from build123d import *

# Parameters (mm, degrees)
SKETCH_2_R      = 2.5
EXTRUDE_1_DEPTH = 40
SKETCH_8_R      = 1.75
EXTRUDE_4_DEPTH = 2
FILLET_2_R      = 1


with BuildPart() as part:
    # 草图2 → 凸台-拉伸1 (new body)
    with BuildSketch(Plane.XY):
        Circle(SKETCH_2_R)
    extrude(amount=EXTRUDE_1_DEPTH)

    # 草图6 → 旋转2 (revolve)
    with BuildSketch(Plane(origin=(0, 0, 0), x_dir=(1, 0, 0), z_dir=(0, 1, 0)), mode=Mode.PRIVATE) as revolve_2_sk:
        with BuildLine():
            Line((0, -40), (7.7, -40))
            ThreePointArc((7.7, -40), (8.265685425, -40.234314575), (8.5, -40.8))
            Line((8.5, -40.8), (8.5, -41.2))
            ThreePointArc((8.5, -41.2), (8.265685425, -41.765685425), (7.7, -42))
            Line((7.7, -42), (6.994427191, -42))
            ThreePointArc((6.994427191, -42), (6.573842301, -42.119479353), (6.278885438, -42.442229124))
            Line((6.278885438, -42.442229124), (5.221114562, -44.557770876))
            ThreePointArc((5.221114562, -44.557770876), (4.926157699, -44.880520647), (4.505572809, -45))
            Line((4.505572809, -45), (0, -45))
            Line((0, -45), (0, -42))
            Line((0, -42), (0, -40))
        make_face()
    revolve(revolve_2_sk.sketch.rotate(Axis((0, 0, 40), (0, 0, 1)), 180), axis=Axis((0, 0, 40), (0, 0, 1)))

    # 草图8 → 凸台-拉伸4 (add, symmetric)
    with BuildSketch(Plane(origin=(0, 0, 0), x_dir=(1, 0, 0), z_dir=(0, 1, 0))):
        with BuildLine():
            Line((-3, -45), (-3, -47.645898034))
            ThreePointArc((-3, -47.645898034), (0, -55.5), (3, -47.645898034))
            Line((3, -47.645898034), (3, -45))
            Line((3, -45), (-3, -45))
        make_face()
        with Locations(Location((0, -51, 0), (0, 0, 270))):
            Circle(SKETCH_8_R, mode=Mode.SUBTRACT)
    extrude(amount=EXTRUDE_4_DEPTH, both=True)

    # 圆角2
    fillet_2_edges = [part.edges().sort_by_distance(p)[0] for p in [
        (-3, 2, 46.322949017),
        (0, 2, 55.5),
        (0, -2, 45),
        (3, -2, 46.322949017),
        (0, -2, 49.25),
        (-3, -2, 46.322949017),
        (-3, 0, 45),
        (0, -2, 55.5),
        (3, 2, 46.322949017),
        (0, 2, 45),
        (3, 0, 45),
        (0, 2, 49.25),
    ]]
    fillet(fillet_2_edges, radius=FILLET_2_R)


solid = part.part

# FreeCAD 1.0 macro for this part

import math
import FreeCAD as App
import Part
import Sketcher

V = App.Vector


def edges_at(feature, points):
    """Names of the edges that pass closest to the given points."""
    edges = feature.Shape.Edges
    near = lambda p: min(range(len(edges)), key=lambda i: edges[i].distToShape(Part.Vertex(*p))[0])
    return sorted({f"Edge{near(p) + 1}" for p in points})

doc = App.newDocument("Part")
body = doc.addObject("PartDesign::Body", "Body")

sketch1 = doc.addObject("Sketcher::SketchObject", "Sketch")
body.addObject(sketch1)
sketch1.AttachmentSupport = (doc.XY_Plane, [""])
sketch1.MapMode = "FlatFace"
sketch1.addGeometry(Part.Circle(V(0, 0, 0), V(0, 0, 1), 2.5), False)
sketch1.addConstraint([
    Sketcher.Constraint("Coincident", 0, 3, -1, 1),
    Sketcher.Constraint("Diameter", 0, 5.0),
])
pad1 = doc.addObject("PartDesign::Pad", "Pad")
body.addObject(pad1)
pad1.Profile = sketch1
pad1.Length = 40

sketch2 = doc.addObject("Sketcher::SketchObject", "Sketch001")
body.addObject(sketch2)
sketch2.AttachmentSupport = (doc.XZ_Plane, [""])
sketch2.MapMode = "FlatFace"
sketch2.addGeometry([
    Part.LineSegment(V(7.7, 40, 0), V(0, 40, 0)),
    Part.LineSegment(V(0, 40, 0), V(0, 45, 0)),
    Part.LineSegment(V(0, 45, 0), V(4.51, 45, 0)),
    Part.ArcOfCircle(Part.Circle(V(4.51, 44.2, 0), V(0, 0, 1), 0.8), math.radians(27), math.radians(90)),
    Part.LineSegment(V(5.22, 44.56, 0), V(6.28, 42.44, 0)),
    Part.ArcOfCircle(Part.Circle(V(6.99, 42.8, 0), V(0, 0, 1), 0.8), math.radians(-153), math.radians(-90)),
    Part.LineSegment(V(6.99, 42, 0), V(7.7, 42, 0)),
    Part.ArcOfCircle(Part.Circle(V(7.7, 41.2, 0), V(0, 0, 1), 0.8), math.radians(0), math.radians(90)),
    Part.LineSegment(V(8.5, 41.2, 0), V(8.5, 40.8, 0)),
    Part.ArcOfCircle(Part.Circle(V(7.7, 40.8, 0), V(0, 0, 1), 0.8), math.radians(-90), math.radians(0)),
], False)
sketch2.addConstraint([
    Sketcher.Constraint("Coincident", 0, 2, 1, 1),
    Sketcher.Constraint("Coincident", 1, 2, 2, 1),
    Sketcher.Constraint("Tangent", 2, 2, 3, 2),
    Sketcher.Constraint("Tangent", 3, 1, 4, 1),
    Sketcher.Constraint("Tangent", 4, 2, 5, 1),
    Sketcher.Constraint("Tangent", 5, 2, 6, 1),
    Sketcher.Constraint("Tangent", 6, 2, 7, 2),
    Sketcher.Constraint("Tangent", 7, 1, 8, 1),
    Sketcher.Constraint("Tangent", 8, 2, 9, 2),
    Sketcher.Constraint("Tangent", 9, 1, 0, 1),
    Sketcher.Constraint("Horizontal", 0),
    Sketcher.Constraint("Vertical", 1),
    Sketcher.Constraint("Horizontal", 2),
    Sketcher.Constraint("Horizontal", 6),
    Sketcher.Constraint("Vertical", 8),
    Sketcher.Constraint("Equal", 3, 5),
    Sketcher.Constraint("Equal", 5, 7),
    Sketcher.Constraint("Equal", 7, 9),
    Sketcher.Constraint("PointOnObject", 0, 2, -2),
    Sketcher.Constraint("Radius", 3, 0.8),
    Sketcher.Constraint("DistanceY", 1, 1, 1, 2, 5.0),
    Sketcher.Constraint("DistanceX", 0, 2, 0, 1, 7.7),
    Sketcher.Constraint("DistanceY", 8, 2, 8, 1, 0.4),
    Sketcher.Constraint("DistanceY", -1, 1, 0, 2, 40.0),
    Sketcher.Constraint("DistanceX", 2, 1, 2, 2, 4.505573),
    Sketcher.Constraint("DistanceX", 6, 1, 6, 2, 0.705573),
])
revolution = doc.addObject("PartDesign::Revolution", "Revolution")
body.addObject(revolution)
revolution.Profile = sketch2
revolution.ReferenceAxis = (sketch2, ["V_Axis"])
revolution.Angle = 360

sketch3 = doc.addObject("Sketcher::SketchObject", "Sketch002")
body.addObject(sketch3)
sketch3.AttachmentSupport = (doc.XZ_Plane, [""])
sketch3.MapMode = "FlatFace"
sketch3.addGeometry([
    Part.LineSegment(V(-3, 45, 0), V(-3, 47.6, 0)),
    Part.ArcOfCircle(Part.Circle(V(0, 51, 0), V(0, 0, 1), 4.5), math.radians(-48), math.radians(228)),
    Part.LineSegment(V(3, 47.6, 0), V(3, 45, 0)),
    Part.LineSegment(V(3, 45, 0), V(-3, 45, 0)),
    Part.Circle(V(0, 51, 0), V(0, 0, 1), 1.8),
], False)
sketch3.addConstraint([
    Sketcher.Constraint("Coincident", 0, 2, 1, 2),
    Sketcher.Constraint("Coincident", 1, 1, 2, 1),
    Sketcher.Constraint("Coincident", 2, 2, 3, 1),
    Sketcher.Constraint("Coincident", 3, 2, 0, 1),
    Sketcher.Constraint("Vertical", 0),
    Sketcher.Constraint("Vertical", 2),
    Sketcher.Constraint("Horizontal", 3),
    Sketcher.Constraint("Coincident", 4, 3, 1, 3),
    Sketcher.Constraint("Symmetric", 0, 2, 1, 1, -2),
    Sketcher.Constraint("Diameter", 4, 3.5),
    Sketcher.Constraint("Radius", 1, 4.5),
    Sketcher.Constraint("DistanceX", 3, 2, 3, 1, 6.0),
    Sketcher.Constraint("DistanceY", -1, 1, 1, 3, 51.0),
    Sketcher.Constraint("DistanceY", -1, 1, 2, 2, 45.0),
])
pad2 = doc.addObject("PartDesign::Pad", "Pad001")
body.addObject(pad2)
pad2.Profile = sketch3
pad2.Length = 4
pad2.Midplane = True
doc.recompute()

fillet = doc.addObject("PartDesign::Fillet", "Fillet")
body.addObject(fillet)
fillet.Base = (pad2, edges_at(pad2, [
    (-3, 2, 46.323),
    (0, 2, 55.5),
    (0, -2, 45),
    (3, -2, 46.323),
    (0, -2, 49.25),
    (-3, -2, 46.323),
    (-3, 0, 45),
    (0, -2, 55.5),
    (3, 2, 46.323),
    (0, 2, 45),
    (3, 0, 45),
    (0, 2, 49.25),
]))
fillet.Radius = 1

doc.recompute()
